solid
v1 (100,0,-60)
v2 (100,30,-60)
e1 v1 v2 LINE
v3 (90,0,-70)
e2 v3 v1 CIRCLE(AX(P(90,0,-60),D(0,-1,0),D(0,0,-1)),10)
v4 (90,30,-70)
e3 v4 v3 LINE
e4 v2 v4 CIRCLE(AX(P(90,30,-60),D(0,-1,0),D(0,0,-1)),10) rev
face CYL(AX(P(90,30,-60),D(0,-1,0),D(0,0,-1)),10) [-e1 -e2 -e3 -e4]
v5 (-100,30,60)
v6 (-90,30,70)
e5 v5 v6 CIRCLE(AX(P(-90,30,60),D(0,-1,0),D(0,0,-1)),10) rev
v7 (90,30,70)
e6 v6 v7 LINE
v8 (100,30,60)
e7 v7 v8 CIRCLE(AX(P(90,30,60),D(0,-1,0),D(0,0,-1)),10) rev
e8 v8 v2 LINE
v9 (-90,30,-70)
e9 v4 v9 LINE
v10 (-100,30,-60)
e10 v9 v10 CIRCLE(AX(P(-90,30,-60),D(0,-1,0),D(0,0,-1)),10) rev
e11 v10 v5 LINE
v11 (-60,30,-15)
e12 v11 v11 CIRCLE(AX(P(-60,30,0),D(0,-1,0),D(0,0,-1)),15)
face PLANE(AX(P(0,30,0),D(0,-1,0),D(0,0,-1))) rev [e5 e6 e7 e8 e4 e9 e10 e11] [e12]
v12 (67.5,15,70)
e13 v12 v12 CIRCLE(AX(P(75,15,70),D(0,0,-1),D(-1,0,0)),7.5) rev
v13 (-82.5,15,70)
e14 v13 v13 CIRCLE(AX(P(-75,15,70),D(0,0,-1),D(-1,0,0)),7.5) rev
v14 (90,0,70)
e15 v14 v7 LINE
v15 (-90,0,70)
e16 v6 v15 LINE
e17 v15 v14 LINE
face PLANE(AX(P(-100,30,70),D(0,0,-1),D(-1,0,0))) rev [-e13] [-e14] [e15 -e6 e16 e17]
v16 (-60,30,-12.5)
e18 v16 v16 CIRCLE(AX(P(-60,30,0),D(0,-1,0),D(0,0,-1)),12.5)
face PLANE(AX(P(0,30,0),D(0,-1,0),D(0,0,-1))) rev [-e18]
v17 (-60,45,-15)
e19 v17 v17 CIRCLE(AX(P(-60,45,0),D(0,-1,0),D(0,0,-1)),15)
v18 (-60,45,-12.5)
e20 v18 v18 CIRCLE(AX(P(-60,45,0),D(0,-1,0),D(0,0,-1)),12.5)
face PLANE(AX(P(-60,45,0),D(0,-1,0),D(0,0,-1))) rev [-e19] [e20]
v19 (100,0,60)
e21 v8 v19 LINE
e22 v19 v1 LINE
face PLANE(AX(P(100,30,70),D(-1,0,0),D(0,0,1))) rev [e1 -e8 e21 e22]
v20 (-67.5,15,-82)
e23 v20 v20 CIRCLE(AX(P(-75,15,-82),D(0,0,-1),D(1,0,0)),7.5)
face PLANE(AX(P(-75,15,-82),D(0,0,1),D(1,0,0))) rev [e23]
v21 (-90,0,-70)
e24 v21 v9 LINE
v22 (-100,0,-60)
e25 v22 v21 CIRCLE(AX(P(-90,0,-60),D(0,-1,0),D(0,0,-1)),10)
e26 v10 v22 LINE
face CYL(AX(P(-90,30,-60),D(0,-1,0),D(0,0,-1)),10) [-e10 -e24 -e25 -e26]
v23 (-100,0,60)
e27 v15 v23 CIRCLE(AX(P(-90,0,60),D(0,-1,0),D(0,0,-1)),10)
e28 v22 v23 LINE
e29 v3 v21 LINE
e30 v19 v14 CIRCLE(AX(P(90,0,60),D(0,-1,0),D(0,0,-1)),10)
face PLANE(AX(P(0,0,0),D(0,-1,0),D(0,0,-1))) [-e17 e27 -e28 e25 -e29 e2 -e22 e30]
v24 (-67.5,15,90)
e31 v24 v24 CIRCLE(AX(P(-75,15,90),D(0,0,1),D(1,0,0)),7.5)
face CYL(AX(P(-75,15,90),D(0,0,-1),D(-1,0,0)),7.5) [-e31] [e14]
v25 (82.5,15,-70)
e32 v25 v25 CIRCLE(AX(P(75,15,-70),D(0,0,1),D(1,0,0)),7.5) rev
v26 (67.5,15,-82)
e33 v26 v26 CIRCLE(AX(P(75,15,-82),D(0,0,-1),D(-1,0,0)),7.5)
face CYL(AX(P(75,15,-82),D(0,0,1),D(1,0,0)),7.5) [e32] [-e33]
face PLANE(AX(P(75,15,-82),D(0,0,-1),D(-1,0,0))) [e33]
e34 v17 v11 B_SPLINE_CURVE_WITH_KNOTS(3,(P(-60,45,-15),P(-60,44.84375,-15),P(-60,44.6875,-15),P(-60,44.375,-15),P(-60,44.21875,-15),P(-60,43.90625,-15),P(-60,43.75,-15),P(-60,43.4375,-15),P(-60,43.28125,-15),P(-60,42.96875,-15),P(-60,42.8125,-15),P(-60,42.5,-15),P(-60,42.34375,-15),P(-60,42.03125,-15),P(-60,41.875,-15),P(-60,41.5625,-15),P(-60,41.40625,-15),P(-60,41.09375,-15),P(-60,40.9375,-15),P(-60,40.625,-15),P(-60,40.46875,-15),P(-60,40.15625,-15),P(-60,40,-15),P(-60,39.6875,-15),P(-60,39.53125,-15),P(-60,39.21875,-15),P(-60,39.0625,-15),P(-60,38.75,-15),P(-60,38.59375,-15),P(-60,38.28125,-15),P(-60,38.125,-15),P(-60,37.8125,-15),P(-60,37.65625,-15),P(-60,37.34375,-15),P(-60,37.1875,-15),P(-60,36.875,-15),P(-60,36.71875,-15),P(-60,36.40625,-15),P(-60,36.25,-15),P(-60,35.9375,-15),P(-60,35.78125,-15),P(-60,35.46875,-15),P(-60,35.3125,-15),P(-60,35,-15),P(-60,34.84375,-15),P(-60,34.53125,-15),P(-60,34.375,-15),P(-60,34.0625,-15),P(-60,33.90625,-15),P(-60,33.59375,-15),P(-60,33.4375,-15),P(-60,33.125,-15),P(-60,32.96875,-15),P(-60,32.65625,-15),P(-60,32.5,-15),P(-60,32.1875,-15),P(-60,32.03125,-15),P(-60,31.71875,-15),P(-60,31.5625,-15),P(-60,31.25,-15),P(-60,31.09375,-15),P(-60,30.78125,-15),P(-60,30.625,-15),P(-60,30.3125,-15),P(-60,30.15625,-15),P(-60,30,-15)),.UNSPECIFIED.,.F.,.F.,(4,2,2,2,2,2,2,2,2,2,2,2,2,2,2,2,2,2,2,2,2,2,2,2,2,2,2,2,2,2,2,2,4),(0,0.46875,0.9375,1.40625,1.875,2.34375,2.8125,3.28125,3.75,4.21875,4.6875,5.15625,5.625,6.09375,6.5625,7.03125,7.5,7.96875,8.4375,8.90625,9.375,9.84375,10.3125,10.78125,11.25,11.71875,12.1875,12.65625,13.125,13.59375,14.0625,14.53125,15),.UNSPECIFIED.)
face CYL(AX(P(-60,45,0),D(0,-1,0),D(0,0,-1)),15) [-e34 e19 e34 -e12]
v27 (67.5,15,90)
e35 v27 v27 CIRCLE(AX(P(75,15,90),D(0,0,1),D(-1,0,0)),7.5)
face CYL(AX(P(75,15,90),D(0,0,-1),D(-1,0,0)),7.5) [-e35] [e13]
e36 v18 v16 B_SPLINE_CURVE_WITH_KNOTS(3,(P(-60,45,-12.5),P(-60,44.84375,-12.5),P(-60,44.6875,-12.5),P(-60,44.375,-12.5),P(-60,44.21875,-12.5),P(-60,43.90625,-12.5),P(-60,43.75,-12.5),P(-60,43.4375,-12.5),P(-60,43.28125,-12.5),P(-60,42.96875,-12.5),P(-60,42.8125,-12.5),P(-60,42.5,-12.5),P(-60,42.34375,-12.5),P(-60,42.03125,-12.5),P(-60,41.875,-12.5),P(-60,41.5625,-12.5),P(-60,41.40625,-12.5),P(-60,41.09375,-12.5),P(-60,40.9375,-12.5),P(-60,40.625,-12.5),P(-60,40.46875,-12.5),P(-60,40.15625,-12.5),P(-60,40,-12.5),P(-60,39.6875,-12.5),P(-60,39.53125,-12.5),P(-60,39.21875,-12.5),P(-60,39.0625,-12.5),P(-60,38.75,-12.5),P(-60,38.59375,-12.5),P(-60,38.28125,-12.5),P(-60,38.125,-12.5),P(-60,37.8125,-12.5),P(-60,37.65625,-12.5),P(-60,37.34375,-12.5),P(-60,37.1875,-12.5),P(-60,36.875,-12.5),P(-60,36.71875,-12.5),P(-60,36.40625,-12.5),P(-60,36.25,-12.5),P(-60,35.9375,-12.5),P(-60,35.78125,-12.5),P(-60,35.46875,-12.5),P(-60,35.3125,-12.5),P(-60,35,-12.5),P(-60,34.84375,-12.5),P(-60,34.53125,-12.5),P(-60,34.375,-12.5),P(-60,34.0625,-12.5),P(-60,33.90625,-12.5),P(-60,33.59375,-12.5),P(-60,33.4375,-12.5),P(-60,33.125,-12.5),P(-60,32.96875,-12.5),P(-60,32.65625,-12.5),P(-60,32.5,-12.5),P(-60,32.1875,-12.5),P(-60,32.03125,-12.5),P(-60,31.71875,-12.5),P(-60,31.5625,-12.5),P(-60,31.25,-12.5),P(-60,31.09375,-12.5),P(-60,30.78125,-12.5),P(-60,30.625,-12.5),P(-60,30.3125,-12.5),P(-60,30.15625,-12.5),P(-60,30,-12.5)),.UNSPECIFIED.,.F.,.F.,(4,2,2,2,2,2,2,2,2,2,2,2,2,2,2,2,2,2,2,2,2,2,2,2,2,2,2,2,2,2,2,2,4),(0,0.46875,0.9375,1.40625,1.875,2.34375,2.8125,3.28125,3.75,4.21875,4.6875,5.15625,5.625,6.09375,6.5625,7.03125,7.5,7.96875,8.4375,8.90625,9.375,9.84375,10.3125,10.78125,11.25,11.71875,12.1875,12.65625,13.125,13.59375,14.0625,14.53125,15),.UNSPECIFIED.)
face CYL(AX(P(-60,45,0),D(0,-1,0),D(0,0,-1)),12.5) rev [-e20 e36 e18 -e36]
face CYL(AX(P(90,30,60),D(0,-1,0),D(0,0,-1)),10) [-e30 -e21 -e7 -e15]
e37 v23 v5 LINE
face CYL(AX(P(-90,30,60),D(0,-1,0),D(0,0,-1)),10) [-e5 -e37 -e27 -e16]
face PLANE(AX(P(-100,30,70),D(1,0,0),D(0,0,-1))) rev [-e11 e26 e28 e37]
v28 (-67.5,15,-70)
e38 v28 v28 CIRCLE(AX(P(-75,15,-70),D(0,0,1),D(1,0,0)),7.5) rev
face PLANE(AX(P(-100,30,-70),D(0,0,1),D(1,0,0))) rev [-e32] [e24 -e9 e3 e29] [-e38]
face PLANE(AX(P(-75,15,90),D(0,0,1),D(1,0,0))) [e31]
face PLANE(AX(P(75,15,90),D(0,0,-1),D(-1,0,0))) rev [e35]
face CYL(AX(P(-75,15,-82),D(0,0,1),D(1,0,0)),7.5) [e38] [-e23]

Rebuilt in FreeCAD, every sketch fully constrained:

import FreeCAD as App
import Part
import Sketcher
Q = App.Units.Quantity


def edges_at(feature, points):
    """Names of the edges that pass closest to the given points."""
    edges = feature.Shape.Edges
    near = lambda p: min(range(len(edges)), key=lambda i: edges[i].distToShape(Part.Vertex(*p))[0])
    return sorted({f"Edge{near(p) + 1}" for p in points})


def add_polygon(sketch, points):
    """Adds a closed chain of lines whose ends are joined by coincident constraints."""
    first, n = sketch.GeometryCount, len(points)
    for a, b in zip(points, points[1:] + points[:1]):
        sketch.addGeometry(Part.LineSegment(App.Vector(*a, 0), App.Vector(*b, 0)), False)
    for i in range(n):
        sketch.addConstraint(Sketcher.Constraint("Coincident", first + i, 2, first + (i + 1) % n, 1))

doc = App.newDocument("Part")
params = doc.addObject("Spreadsheet::Sheet", "Params")
for row, (alias, value) in enumerate([
    ("sketch1_width", "200 mm"),
    ("sketch1_height", "140 mm"),
    ("pad1_length", "30 mm"),
    ("fillet_radius", "10 mm"),
    ("sketch2_diameter", "15 mm"),
    ("pad2_length", "20 mm"),
    ("sketch3_diameter", "15 mm"),
    ("pad3_length", "12 mm"),
    ("sketch4_diameter", "30 mm"),
    ("sketch4_diameter2", "25 mm"),
    ("pad4_length", "45 mm"),
], start=1):
    params.set(f"A{row}", alias)
    params.set(f"B{row}", "=" + value)
    params.setAlias(f"B{row}", alias)

body = doc.addObject("PartDesign::Body", "Body")

# Sketch on XZ plane
sketch1 = doc.addObject("Sketcher::SketchObject", "Sketch")
body.addObject(sketch1)
sketch1.AttachmentSupport = (doc.XZ_Plane, [""])
sketch1.MapMode = "FlatFace"
add_polygon(sketch1, [(-100, -70), (-100, 70), (100, 70), (100, -70)])  # lines 0-3
sketch1.addConstraint(Sketcher.Constraint("Vertical", 0))
sketch1.addConstraint(Sketcher.Constraint("Horizontal", 1))
sketch1.addConstraint(Sketcher.Constraint("Vertical", 2))
sketch1.addConstraint(Sketcher.Constraint("Horizontal", 3))
sketch1.addConstraint(Sketcher.Constraint("Symmetric", 0, 2, 2, 2, -1, 1))
sketch1.addConstraint(Sketcher.Constraint("DistanceX", 1, 1, 1, 2, Q("200 mm")))
sketch1.addConstraint(Sketcher.Constraint("DistanceY", 0, 1, 0, 2, Q("140 mm")))
sketch1.setExpression("Constraints[9]", "Params.sketch1_width")
sketch1.setExpression("Constraints[10]", "Params.sketch1_height")
pad1 = doc.addObject("PartDesign::Pad", "Pad")
body.addObject(pad1)
pad1.Profile = sketch1
pad1.setExpression("Length", "Params.pad1_length")
pad1.Reversed = True
doc.recompute()

fillet = doc.addObject("PartDesign::Fillet", "Fillet")
body.addObject(fillet)
fillet.Base = (pad1, edges_at(pad1, [
    (100, 15, 70),
    (-100, 15, 70),
    (-100, 15, -70),
    (100, 15, -70),
]))
fillet.setExpression("Radius", "Params.fillet_radius")

# Sketch on XY plane
sketch2 = doc.addObject("Sketcher::SketchObject", "Sketch001")
body.addObject(sketch2)
sketch2.AttachmentSupport = (doc.XY_Plane, [""])
sketch2.MapMode = "FlatFace"
sketch2.AttachmentOffset = App.Placement(App.Vector(0, 0, 70), App.Rotation())
sketch2.addGeometry(Part.Circle(App.Vector(-75, 15, 0), App.Vector(0, 0, 1), 8), False)
sketch2.addGeometry(Part.Circle(App.Vector(75, 15, 0), App.Vector(0, 0, 1), 8), False)
sketch2.addConstraint(Sketcher.Constraint("Equal", 0, 1))
sketch2.addConstraint(Sketcher.Constraint("Symmetric", 0, 3, 1, 3, -2))
sketch2.addConstraint(Sketcher.Constraint("Diameter", 0, Q("15 mm")))
sketch2.addConstraint(Sketcher.Constraint("DistanceX", 0, 3, -1, 1, Q("75 mm")))
sketch2.addConstraint(Sketcher.Constraint("DistanceY", -1, 1, 0, 3, Q("15 mm")))
sketch2.setExpression("Constraints[2]", "Params.sketch2_diameter")
pad2 = doc.addObject("PartDesign::Pad", "Pad001")
body.addObject(pad2)
pad2.Profile = sketch2
pad2.setExpression("Length", "Params.pad2_length")

# Sketch on XY plane
sketch3 = doc.addObject("Sketcher::SketchObject", "Sketch002")
body.addObject(sketch3)
sketch3.AttachmentSupport = (doc.XY_Plane, [""])
sketch3.MapMode = "FlatFace"
sketch3.AttachmentOffset = App.Placement(App.Vector(0, 0, -82), App.Rotation())
sketch3.addGeometry(Part.Circle(App.Vector(75, 15, 0), App.Vector(0, 0, 1), 8), False)
sketch3.addGeometry(Part.Circle(App.Vector(-75, 15, 0), App.Vector(0, 0, 1), 8), False)
sketch3.addConstraint(Sketcher.Constraint("Equal", 0, 1))
sketch3.addConstraint(Sketcher.Constraint("Symmetric", 0, 3, 1, 3, -2))
sketch3.addConstraint(Sketcher.Constraint("Diameter", 0, Q("15 mm")))
sketch3.addConstraint(Sketcher.Constraint("DistanceX", -1, 1, 0, 3, Q("75 mm")))
sketch3.addConstraint(Sketcher.Constraint("DistanceY", -1, 1, 0, 3, Q("15 mm")))
sketch3.setExpression("Constraints[2]", "Params.sketch3_diameter")
pad3 = doc.addObject("PartDesign::Pad", "Pad002")
body.addObject(pad3)
pad3.Profile = sketch3
pad3.setExpression("Length", "Params.pad3_length")

# Sketch on XZ plane
sketch4 = doc.addObject("Sketcher::SketchObject", "Sketch003")
body.addObject(sketch4)
sketch4.AttachmentSupport = (doc.XZ_Plane, [""])
sketch4.MapMode = "FlatFace"
sketch4.addGeometry(Part.Circle(App.Vector(-60, 0, 0), App.Vector(0, 0, 1), 15), False)
sketch4.addGeometry(Part.Circle(App.Vector(-60, 0, 0), App.Vector(0, 0, 1), 12), False)
sketch4.addConstraint(Sketcher.Constraint("Coincident", 1, 3, 0, 3))
sketch4.addConstraint(Sketcher.Constraint("PointOnObject", 0, 3, -1))
sketch4.addConstraint(Sketcher.Constraint("Diameter", 0, Q("30 mm")))
sketch4.addConstraint(Sketcher.Constraint("Diameter", 1, Q("25 mm")))
sketch4.addConstraint(Sketcher.Constraint("DistanceX", 0, 3, -1, 1, Q("60 mm")))
sketch4.setExpression("Constraints[2]", "Params.sketch4_diameter")
sketch4.setExpression("Constraints[3]", "Params.sketch4_diameter2")
pad4 = doc.addObject("PartDesign::Pad", "Pad003")
body.addObject(pad4)
pad4.Profile = sketch4
pad4.setExpression("Length", "Params.pad4_length")
pad4.Reversed = True

doc.recompute()
